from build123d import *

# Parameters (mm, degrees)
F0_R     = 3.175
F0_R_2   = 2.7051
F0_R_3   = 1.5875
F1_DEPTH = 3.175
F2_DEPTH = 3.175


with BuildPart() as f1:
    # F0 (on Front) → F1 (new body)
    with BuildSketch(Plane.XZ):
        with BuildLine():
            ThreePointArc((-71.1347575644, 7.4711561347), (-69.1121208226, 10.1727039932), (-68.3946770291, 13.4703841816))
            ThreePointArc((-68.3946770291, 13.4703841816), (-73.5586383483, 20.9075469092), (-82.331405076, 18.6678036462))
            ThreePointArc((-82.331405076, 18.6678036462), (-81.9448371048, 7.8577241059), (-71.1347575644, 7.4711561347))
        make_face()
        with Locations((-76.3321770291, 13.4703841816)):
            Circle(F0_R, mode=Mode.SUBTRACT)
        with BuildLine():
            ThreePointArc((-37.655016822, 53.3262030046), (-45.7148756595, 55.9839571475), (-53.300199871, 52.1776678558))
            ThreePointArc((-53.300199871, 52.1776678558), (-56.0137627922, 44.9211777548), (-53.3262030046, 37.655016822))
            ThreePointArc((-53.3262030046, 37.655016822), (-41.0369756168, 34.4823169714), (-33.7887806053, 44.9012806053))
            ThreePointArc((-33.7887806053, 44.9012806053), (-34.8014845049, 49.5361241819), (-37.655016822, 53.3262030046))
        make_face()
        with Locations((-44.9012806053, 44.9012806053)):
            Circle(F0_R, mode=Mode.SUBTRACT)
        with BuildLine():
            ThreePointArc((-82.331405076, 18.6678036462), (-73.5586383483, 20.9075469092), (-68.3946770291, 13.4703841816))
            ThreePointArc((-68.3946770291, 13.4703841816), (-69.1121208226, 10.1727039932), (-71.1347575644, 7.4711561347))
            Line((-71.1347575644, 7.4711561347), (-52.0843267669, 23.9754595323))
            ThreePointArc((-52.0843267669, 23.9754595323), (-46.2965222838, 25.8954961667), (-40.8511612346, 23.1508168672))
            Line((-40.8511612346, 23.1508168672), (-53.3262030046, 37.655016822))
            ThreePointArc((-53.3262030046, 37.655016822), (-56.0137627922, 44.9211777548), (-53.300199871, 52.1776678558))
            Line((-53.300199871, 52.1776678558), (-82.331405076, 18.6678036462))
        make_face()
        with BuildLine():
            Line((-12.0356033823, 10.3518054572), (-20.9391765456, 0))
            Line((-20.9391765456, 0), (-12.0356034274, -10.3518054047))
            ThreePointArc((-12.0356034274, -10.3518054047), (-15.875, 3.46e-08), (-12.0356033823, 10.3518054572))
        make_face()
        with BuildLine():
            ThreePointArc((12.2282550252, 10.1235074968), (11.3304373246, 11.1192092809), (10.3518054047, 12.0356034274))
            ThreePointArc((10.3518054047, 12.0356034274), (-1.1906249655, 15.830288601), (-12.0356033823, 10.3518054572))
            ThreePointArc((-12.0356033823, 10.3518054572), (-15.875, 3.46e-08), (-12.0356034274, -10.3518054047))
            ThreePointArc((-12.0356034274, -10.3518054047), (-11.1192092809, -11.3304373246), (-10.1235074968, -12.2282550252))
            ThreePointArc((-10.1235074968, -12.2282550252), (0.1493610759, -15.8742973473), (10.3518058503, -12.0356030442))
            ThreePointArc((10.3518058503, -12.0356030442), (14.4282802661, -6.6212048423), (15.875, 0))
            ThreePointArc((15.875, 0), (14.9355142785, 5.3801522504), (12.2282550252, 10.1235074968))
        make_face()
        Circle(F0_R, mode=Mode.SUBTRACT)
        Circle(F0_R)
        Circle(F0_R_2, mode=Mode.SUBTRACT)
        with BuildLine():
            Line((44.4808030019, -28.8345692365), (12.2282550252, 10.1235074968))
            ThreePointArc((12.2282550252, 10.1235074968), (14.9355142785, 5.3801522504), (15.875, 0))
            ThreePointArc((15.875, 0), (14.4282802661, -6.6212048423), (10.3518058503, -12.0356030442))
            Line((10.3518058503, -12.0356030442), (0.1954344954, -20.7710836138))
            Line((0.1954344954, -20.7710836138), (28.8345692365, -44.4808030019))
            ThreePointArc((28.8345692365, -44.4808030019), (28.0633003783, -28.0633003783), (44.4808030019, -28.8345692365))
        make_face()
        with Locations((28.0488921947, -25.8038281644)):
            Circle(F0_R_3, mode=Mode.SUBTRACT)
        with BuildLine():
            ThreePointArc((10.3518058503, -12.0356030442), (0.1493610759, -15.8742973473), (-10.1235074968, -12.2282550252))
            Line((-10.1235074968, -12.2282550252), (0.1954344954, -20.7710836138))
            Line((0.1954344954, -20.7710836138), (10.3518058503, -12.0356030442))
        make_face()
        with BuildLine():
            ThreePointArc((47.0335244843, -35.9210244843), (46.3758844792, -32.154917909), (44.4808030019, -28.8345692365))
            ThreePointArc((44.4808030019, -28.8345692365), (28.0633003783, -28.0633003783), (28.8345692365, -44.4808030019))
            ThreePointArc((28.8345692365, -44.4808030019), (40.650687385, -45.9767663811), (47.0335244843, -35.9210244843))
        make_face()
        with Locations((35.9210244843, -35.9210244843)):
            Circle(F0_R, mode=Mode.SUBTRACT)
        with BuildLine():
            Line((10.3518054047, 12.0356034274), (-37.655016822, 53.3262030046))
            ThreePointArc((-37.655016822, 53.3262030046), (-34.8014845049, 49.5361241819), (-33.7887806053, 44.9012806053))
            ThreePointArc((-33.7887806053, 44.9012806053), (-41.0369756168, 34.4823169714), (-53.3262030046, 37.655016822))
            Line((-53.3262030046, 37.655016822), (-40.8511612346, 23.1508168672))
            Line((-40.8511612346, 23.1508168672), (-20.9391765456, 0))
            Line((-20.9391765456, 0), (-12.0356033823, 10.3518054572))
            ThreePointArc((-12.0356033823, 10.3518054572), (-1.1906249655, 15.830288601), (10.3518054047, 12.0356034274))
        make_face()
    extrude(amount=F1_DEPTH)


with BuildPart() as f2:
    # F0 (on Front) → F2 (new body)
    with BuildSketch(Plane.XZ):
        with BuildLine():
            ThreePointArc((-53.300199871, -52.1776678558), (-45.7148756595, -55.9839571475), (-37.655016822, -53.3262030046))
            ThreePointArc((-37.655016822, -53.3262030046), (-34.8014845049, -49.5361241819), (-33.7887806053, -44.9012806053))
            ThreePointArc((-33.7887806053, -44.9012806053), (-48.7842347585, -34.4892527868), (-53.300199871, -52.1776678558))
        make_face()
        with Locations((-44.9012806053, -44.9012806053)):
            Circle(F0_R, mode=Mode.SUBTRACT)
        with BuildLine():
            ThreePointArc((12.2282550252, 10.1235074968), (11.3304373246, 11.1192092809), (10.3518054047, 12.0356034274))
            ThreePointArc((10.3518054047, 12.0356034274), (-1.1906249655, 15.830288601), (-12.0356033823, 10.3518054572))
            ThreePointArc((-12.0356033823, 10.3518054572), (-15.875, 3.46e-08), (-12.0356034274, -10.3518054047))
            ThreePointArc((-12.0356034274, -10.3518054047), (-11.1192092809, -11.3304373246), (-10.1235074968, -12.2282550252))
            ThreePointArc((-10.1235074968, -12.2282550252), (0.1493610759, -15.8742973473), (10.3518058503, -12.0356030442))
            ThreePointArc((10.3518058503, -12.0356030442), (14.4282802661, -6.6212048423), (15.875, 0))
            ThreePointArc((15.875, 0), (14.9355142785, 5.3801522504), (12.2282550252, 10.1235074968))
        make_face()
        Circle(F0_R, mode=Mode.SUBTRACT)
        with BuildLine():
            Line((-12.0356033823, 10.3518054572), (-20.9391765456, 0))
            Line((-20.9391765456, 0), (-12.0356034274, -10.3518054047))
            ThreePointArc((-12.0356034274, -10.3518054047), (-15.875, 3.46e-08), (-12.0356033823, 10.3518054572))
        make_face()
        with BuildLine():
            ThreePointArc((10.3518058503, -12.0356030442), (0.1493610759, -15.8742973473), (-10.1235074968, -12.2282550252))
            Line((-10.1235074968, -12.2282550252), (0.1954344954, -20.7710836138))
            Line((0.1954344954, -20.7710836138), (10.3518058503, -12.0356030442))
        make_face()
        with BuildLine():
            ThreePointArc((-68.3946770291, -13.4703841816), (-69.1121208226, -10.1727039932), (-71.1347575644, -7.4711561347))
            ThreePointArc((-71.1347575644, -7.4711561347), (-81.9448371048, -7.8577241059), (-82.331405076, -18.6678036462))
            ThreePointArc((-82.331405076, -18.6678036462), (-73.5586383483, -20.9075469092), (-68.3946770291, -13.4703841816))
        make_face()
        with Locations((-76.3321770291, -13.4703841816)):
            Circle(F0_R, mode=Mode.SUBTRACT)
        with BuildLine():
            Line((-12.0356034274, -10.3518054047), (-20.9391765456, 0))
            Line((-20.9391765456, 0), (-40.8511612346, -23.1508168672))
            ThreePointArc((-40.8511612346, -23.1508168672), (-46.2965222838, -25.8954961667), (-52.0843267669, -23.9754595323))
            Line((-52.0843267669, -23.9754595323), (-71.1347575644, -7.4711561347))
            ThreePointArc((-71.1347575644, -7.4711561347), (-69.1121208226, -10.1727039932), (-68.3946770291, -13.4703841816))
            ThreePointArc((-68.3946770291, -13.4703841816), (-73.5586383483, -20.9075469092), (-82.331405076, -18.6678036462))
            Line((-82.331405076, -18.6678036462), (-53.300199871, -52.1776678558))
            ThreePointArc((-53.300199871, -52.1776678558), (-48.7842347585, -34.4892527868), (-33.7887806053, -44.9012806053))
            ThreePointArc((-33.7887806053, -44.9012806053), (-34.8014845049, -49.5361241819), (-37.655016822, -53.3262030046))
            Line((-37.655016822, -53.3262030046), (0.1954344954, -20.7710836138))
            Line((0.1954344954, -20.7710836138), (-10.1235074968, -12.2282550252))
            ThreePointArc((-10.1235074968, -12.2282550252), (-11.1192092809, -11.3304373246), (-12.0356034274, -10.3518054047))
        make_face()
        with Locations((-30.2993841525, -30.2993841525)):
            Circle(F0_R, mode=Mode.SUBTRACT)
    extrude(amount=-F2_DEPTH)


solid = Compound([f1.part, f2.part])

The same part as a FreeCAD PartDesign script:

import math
import FreeCAD as App
import Part
import Sketcher
Q = App.Units.Quantity

doc = App.newDocument("Part")
body = doc.addObject("PartDesign::Body", "Body")

sketch1 = body.newObject("Sketcher::SketchObject", "Sketch")
sketch1.AttachmentSupport = (doc.getObject("XZ_Plane"), [""])
sketch1.MapMode = "FlatFace"
sketch1.addGeometry([
    Part.ArcOfCircle(Part.Circle(App.Vector(-76.332177, 13.470384, 0), App.Vector(0, 0, 1), 7.9375), math.radians(139.096044), math.radians(310.903956)),
    Part.LineSegment(App.Vector(-71.134758, 7.471156, 0), App.Vector(-52.084327, 23.97546, 0)),
    Part.ArcOfCircle(Part.Circle(App.Vector(-46.878591, 17.966633, 0), App.Vector(0, 0, 1), 7.9502), math.radians(40.698778), math.radians(130.903956)),
    Part.LineSegment(App.Vector(-40.851161, 23.150817, 0), App.Vector(-20.939177, 0, 0)),
    Part.LineSegment(App.Vector(-20.939177, 0, 0), App.Vector(-12.035603, -10.351805, 0)),
    Part.ArcOfCircle(Part.Circle(App.Vector(0, 0, 0), App.Vector(0, 0, 1), 15.875), math.radians(-139.301222), math.radians(-129.620621)),
    Part.LineSegment(App.Vector(-10.123507, -12.228255, 0), App.Vector(0.195434, -20.771084, 0)),
    Part.LineSegment(App.Vector(0.195434, -20.771084, 0), App.Vector(28.834569, -44.480803, 0)),
    Part.ArcOfCircle(Part.Circle(App.Vector(35.921024, -35.921024, 0), App.Vector(0, 0, 1), 11.1125), math.radians(-129.620621), math.radians(0)),
    Part.ArcOfCircle(Part.Circle(App.Vector(35.921024, -35.921024, 0), App.Vector(0, 0, 1), 11.1125), math.radians(0), math.radians(39.620621)),
    Part.LineSegment(App.Vector(44.480803, -28.834569, 0), App.Vector(12.228255, 10.123507, 0)),
    Part.ArcOfCircle(Part.Circle(App.Vector(0, 0, 0), App.Vector(0, 0, 1), 15.875), math.radians(39.620621), math.radians(49.301222)),
    Part.LineSegment(App.Vector(10.351805, 12.035603, 0), App.Vector(-37.655017, 53.326203, 0)),
    Part.ArcOfCircle(Part.Circle(App.Vector(-44.901281, 44.901281, 0), App.Vector(0, 0, 1), 11.1125), math.radians(49.301222), math.radians(139.096044)),
    Part.LineSegment(App.Vector(-53.3002, 52.177668, 0), App.Vector(-82.331405, 18.667804, 0)),
    Part.Circle(App.Vector(-76.332177, 13.470384, 0), App.Vector(0, 0, 1), 3.175),
    Part.Circle(App.Vector(-44.901281, 44.901281, 0), App.Vector(0, 0, 1), 3.175),
    Part.Circle(App.Vector(0, 0, 0), App.Vector(0, 0, 1), 2.7051),
    Part.Circle(App.Vector(28.048892, -25.803828, 0), App.Vector(0, 0, 1), 1.5875),
    Part.Circle(App.Vector(35.921024, -35.921024, 0), App.Vector(0, 0, 1), 3.175),
], False)
sketch1.addConstraint([
    Sketcher.Constraint("Tangent", 0, 2, 1, 1),
    Sketcher.Constraint("Tangent", 1, 2, 2, 2),
    Sketcher.Constraint("Tangent", 2, 1, 3, 1),
    Sketcher.Constraint("Coincident", 3, 2, 4, 1),
    Sketcher.Constraint("Tangent", 4, 2, 5, 1),
    Sketcher.Constraint("Tangent", 5, 2, 6, 1),
    Sketcher.Constraint("Coincident", 6, 2, 7, 1),
    Sketcher.Constraint("Tangent", 7, 2, 8, 1),
    Sketcher.Constraint("Tangent", 8, 2, 9, 1),
    Sketcher.Constraint("Tangent", 9, 2, 10, 1),
    Sketcher.Constraint("Tangent", 10, 2, 11, 1),
    Sketcher.Constraint("Tangent", 11, 2, 12, 1),
    Sketcher.Constraint("Tangent", 12, 2, 13, 1),
    Sketcher.Constraint("Tangent", 13, 2, 14, 1),
    Sketcher.Constraint("Tangent", 14, 2, 0, 1),
    Sketcher.Constraint("Coincident", 5, 3, -1, 1),
    Sketcher.Constraint("Coincident", 11, 3, -1, 1),
    Sketcher.Constraint("Coincident", 17, 3, -1, 1),
    Sketcher.Constraint("Coincident", 15, 3, 0, 3),
    Sketcher.Constraint("Coincident", 16, 3, 13, 3),
    Sketcher.Constraint("Coincident", 19, 3, 8, 3),
    Sketcher.Constraint("Equal", 8, 9),
    Sketcher.Constraint("Equal", 5, 11),
    Sketcher.Constraint("Equal", 9, 13),
    Sketcher.Constraint("Equal", 15, 16),
    Sketcher.Constraint("Equal", 16, 19),
    Sketcher.Constraint("PointOnObject", 3, 2, -1),
    Sketcher.Constraint("Parallel", 3, 4),
    Sketcher.Constraint("Parallel", 6, 7),
    Sketcher.Constraint("Horizontal", 19, 3, 8, 2),
    Sketcher.Constraint("Diameter", 15, Q("0.25 in")),
    Sketcher.Constraint("Diameter", 17, Q("0.213 in")),
    Sketcher.Constraint("Diameter", 18, Q("0.125 in")),
    Sketcher.Constraint("Radius", 0, Q("0.3125 in")),
    Sketcher.Constraint("Radius", 2, Q("0.313 in")),
    Sketcher.Constraint("Radius", 5, Q("0.625 in")),
    Sketcher.Constraint("Radius", 8, Q("0.4375 in")),
    Sketcher.Constraint("DistanceX", 13, 2, -1, 1, Q("53.3002 mm")),
    Sketcher.Constraint("DistanceX", 0, 3, 8, 3, Q("112.253202 mm")),
    Sketcher.Constraint("Distance", 7, Q("37.179979 mm")),
    Sketcher.Constraint("DistanceX", 2, 3, -1, 1, Q("46.878591 mm")),
    Sketcher.Constraint("DistanceX", 13, 3, -1, 1, Q("44.901281 mm")),
    Sketcher.Constraint("DistanceY", -1, 1, 13, 3, Q("44.901281 mm")),
    Sketcher.Constraint("DistanceY", 18, 3, -1, 1, Q("25.803828 mm")),
    Sketcher.Constraint("DistanceY", -1, 1, 1, 2, Q("23.97546 mm")),
    Sketcher.Constraint("DistanceX", -1, 1, 7, 2, Q("28.834569 mm")),
    Sketcher.Constraint("DistanceY", 9, 2, -1, 1, Q("28.834569 mm")),
    Sketcher.Constraint("DistanceX", 18, 3, 9, 2, Q("16.431911 mm")),
])
pad1 = body.newObject("PartDesign::Pad", "Pad")
pad1.Profile = sketch1
pad1.Length = Q("0.125 in")
body2 = doc.addObject("PartDesign::Body", "Body001")

sketch2 = body2.newObject("Sketcher::SketchObject", "Sketch001")
sketch2.AttachmentSupport = (doc.getObject("XZ_Plane001"), [""])
sketch2.MapMode = "FlatFace"
sketch2.addGeometry([
    Part.ArcOfCircle(Part.Circle(App.Vector(-44.901281, -44.901281, 0), App.Vector(0, 0, 1), 11.1125), math.radians(-139.096044), math.radians(-49.301222)),
    Part.LineSegment(App.Vector(-37.655017, -53.326203, 0), App.Vector(0.195434, -20.771084, 0)),
    Part.LineSegment(App.Vector(0.195434, -20.771084, 0), App.Vector(10.351806, -12.035603, 0)),
    Part.ArcOfCircle(Part.Circle(App.Vector(0, 0, 0), App.Vector(0, 0, 1), 15.875), math.radians(-49.30122), math.radians(0)),
    Part.ArcOfCircle(Part.Circle(App.Vector(0, 0, 0), App.Vector(0, 0, 1), 15.875), math.radians(0), math.radians(39.620621)),
    Part.ArcOfCircle(Part.Circle(App.Vector(0, 0, 0), App.Vector(0, 0, 1), 15.875), math.radians(39.620621), math.radians(49.301222)),
    Part.ArcOfCircle(Part.Circle(App.Vector(0, 0, 0), App.Vector(0, 0, 1), 15.875), math.radians(49.301222), math.radians(139.301222)),
    Part.LineSegment(App.Vector(-12.035603, 10.351805, 0), App.Vector(-40.851161, -23.150817, 0)),
    Part.ArcOfCircle(Part.Circle(App.Vector(-46.878591, -17.966633, 0), App.Vector(0, 0, 1), 7.9502), math.radians(-130.903956), math.radians(-40.698778)),
    Part.LineSegment(App.Vector(-52.084327, -23.97546, 0), App.Vector(-71.134758, -7.471156, 0)),
    Part.ArcOfCircle(Part.Circle(App.Vector(-76.332177, -13.470384, 0), App.Vector(0, 0, 1), 7.9375), math.radians(49.096044), math.radians(220.903956)),
    Part.LineSegment(App.Vector(-82.331405, -18.667804, 0), App.Vector(-53.3002, -52.177668, 0)),
    Part.Circle(App.Vector(-44.901281, -44.901281, 0), App.Vector(0, 0, 1), 3.175),
    Part.Circle(App.Vector(-30.299384, -30.299384, 0), App.Vector(0, 0, 1), 3.175),
    Part.Circle(App.Vector(-76.332177, -13.470384, 0), App.Vector(0, 0, 1), 3.175),
    Part.Circle(App.Vector(0, 0, 0), App.Vector(0, 0, 1), 3.175),
], False)
sketch2.addConstraint([
    Sketcher.Constraint("Coincident", 0, 2, 1, 1),
    Sketcher.Constraint("Coincident", 1, 2, 2, 1),
    Sketcher.Constraint("Coincident", 2, 2, 3, 1),
    Sketcher.Constraint("Coincident", 3, 2, 4, 1),
    Sketcher.Constraint("Coincident", 4, 2, 5, 1),
    Sketcher.Constraint("Coincident", 5, 2, 6, 1),
    Sketcher.Constraint("Coincident", 6, 2, 7, 1),
    Sketcher.Constraint("Coincident", 7, 2, 8, 2),
    Sketcher.Constraint("Coincident", 8, 1, 9, 1),
    Sketcher.Constraint("Coincident", 9, 2, 10, 1),
    Sketcher.Constraint("Coincident", 10, 2, 11, 1),
    Sketcher.Constraint("Coincident", 11, 2, 0, 1),
    Sketcher.Constraint("Coincident", 3, 3, -1, 1),
    Sketcher.Constraint("Coincident", 4, 3, -1, 1),
    Sketcher.Constraint("Coincident", 5, 3, -1, 1),
    Sketcher.Constraint("Coincident", 6, 3, -1, 1),
    Sketcher.Constraint("Coincident", 15, 3, -1, 1),
    Sketcher.Constraint("Coincident", 12, 3, 0, 3),
    Sketcher.Constraint("Coincident", 14, 3, 10, 3),
    Sketcher.Constraint("PointOnObject", 3, 2, -1),
    Sketcher.Constraint("Diameter", 12, Q("0.25 in")),
    Sketcher.Constraint("Diameter", 13, Q("0.25 in")),
    Sketcher.Constraint("Diameter", 14, Q("0.25 in")),
    Sketcher.Constraint("Diameter", 15, Q("0.25 in")),
    Sketcher.Constraint("Radius", 0, Q("0.4375 in")),
    Sketcher.Constraint("Radius", 3, Q("0.625 in")),
    Sketcher.Constraint("Radius", 8, Q("0.313 in")),
    Sketcher.Constraint("Radius", 10, Q("0.3125 in")),
    Sketcher.Constraint("DistanceX", 11, 2, -1, 1, Q("53.3002 mm")),
    Sketcher.Constraint("DistanceY", 13, 3, 14, 3, Q("16.829 mm")),
    Sketcher.Constraint("Distance", 1, Q("49.924868 mm")),
    Sketcher.Constraint("DistanceX", 0, 3, -1, 1, Q("44.901281 mm")),
    Sketcher.Constraint("DistanceY", 0, 3, -1, 1, Q("44.901281 mm")),
    Sketcher.Constraint("DistanceX", 8, 3, -1, 1, Q("46.878591 mm")),
    Sketcher.Constraint("DistanceX", 7, 2, -1, 1, Q("40.851161 mm")),
    Sketcher.Constraint("DistanceY", 8, 1, -1, 1, Q("23.97546 mm")),
    Sketcher.Constraint("DistanceY", 8, 3, 10, 3, Q("4.496249 mm")),
    Sketcher.Constraint("DistanceY", 0, 2, 13, 3, Q("23.026819 mm")),
    Sketcher.Constraint("DistanceX", 10, 3, 0, 2, Q("38.67716 mm")),
    Sketcher.Constraint("DistanceX", 1, 2, 2, 2, Q("10.156371 mm")),
    Sketcher.Constraint("DistanceY", 1, 2, 2, 2, Q("8.735481 mm")),
    Sketcher.Constraint("DistanceX", 5, 2, 4, 2, Q("1.87645 mm")),
    Sketcher.Constraint("DistanceX", 10, 3, 9, 2, Q("5.197419 mm")),
    Sketcher.Constraint("DistanceX", 10, 2, 10, 3, Q("5.999228 mm")),
    Sketcher.Constraint("DistanceY", 11, 2, 7, 2, Q("29.026851 mm")),
    Sketcher.Constraint("Distance", 7, Q("44.190068 mm")),
    Sketcher.Constraint("DistanceX", 13, 3, -1, 1, Q("30.299384 mm")),
    Sketcher.Constraint("DistanceX", -1, 1, 4, 2, Q("12.228255 mm")),
])
pad2 = body2.newObject("PartDesign::Pad", "Pad001")
pad2.Profile = sketch2
pad2.Length = Q("0.125 in")
pad2.Reversed = True

doc.recompute()
